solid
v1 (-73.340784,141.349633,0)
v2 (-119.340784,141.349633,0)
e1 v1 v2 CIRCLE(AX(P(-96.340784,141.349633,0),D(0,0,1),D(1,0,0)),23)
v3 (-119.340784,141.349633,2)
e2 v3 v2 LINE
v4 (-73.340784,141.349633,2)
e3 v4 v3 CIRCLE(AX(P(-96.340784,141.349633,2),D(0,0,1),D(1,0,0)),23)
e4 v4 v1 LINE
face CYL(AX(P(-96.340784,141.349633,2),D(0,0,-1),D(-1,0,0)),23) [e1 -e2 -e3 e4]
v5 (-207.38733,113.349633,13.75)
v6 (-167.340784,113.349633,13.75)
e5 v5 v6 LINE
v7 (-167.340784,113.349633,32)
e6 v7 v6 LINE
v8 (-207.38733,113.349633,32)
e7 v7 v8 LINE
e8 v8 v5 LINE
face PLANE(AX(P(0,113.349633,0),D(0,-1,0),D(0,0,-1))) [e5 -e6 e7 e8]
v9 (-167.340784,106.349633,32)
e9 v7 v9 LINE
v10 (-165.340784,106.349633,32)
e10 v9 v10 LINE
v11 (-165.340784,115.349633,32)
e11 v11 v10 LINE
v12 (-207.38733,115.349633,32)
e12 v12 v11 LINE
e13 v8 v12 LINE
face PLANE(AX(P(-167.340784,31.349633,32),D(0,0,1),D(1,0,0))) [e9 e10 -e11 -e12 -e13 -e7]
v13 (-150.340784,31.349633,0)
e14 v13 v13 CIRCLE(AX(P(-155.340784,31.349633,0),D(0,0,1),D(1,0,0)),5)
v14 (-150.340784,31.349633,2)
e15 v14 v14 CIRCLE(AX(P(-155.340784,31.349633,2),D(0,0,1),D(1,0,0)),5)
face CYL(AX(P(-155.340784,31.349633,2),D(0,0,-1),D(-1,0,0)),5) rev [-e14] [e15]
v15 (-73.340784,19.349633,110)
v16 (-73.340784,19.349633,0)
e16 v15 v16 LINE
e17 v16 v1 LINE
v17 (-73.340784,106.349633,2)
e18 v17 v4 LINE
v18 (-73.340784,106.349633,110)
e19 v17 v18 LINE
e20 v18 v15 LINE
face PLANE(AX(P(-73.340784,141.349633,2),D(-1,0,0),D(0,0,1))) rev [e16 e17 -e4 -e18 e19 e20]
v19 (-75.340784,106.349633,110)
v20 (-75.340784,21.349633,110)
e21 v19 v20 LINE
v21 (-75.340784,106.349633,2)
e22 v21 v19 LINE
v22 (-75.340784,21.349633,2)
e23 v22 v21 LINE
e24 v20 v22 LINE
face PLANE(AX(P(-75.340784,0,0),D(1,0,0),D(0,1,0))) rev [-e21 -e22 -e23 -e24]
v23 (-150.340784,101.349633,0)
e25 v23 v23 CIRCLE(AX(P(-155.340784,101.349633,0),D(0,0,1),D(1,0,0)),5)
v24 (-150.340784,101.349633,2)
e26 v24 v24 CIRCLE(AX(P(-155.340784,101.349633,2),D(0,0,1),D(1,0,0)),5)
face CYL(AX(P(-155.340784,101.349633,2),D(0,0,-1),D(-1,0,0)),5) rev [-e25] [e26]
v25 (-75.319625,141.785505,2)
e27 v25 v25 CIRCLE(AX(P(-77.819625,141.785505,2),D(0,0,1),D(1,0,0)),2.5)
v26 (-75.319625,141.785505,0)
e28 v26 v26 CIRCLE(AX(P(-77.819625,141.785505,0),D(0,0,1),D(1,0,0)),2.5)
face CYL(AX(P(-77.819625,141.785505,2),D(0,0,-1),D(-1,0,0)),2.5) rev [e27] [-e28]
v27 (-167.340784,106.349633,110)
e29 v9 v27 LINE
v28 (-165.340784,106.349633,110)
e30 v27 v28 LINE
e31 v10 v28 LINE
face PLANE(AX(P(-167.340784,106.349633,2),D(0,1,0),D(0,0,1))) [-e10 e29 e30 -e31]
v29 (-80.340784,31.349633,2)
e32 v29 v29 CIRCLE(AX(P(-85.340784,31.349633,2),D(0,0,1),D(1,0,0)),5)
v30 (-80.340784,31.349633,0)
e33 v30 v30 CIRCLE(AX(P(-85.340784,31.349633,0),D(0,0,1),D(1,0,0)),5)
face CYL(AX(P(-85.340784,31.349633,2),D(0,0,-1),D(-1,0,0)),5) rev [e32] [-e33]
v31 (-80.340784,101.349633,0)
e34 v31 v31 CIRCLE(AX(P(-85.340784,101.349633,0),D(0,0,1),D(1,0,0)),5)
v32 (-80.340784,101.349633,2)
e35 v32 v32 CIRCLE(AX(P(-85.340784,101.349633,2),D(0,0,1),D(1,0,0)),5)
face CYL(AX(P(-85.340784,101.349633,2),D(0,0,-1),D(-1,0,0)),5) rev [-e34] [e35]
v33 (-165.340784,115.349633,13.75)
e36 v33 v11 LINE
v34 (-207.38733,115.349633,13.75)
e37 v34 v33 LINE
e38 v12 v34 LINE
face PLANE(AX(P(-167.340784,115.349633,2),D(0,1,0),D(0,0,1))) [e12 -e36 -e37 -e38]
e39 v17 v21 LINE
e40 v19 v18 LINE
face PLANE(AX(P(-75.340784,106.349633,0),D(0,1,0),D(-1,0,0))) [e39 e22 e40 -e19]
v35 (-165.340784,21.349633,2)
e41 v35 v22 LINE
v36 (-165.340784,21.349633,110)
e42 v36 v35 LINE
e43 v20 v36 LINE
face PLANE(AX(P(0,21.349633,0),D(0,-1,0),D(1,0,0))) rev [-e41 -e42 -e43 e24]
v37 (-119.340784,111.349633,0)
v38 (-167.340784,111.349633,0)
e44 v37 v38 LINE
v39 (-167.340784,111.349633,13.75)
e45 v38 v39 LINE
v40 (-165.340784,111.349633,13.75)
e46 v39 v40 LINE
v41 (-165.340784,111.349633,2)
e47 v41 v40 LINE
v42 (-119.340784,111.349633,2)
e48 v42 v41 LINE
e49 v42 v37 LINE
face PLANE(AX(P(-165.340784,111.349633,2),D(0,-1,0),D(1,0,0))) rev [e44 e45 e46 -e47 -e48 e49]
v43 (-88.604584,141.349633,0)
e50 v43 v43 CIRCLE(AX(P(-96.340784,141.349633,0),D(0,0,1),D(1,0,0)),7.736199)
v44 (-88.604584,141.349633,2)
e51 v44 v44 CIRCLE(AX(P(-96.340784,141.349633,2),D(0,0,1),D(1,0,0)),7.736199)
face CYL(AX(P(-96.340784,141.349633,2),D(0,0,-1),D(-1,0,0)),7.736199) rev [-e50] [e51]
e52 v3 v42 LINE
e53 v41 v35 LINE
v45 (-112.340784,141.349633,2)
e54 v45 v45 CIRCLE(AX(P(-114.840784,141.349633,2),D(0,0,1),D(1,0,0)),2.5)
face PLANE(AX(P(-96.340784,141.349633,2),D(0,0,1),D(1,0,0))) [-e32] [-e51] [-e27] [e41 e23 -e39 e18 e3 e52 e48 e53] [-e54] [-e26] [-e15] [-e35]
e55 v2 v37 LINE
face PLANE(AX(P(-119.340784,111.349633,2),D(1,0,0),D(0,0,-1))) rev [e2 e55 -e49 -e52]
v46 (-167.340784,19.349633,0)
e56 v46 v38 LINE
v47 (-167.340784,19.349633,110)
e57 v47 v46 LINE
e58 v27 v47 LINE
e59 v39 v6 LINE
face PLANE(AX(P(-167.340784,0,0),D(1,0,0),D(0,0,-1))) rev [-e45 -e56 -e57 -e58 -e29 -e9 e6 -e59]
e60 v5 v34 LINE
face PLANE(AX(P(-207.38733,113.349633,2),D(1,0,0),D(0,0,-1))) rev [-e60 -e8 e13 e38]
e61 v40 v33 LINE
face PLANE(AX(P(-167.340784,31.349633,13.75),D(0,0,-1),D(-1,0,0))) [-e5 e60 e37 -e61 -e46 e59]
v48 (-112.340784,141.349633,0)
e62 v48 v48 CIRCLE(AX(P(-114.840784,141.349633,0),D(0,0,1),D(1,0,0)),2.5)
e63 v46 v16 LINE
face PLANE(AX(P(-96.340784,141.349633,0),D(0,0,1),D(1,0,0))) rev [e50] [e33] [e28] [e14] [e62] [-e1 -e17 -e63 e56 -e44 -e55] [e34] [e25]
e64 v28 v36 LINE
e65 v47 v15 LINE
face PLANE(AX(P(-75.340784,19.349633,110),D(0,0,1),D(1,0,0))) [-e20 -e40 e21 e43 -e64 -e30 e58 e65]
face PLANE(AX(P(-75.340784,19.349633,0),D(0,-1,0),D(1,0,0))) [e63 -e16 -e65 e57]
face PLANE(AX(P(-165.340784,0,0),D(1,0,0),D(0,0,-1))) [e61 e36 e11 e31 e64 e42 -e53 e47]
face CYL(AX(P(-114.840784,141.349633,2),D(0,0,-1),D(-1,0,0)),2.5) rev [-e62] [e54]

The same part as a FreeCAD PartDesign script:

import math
import FreeCAD as App
import Part
import Sketcher
from FreeCAD import Vector
Q = App.Units.Quantity

doc = App.newDocument("Part")
body = doc.addObject("PartDesign::Body", "Body")

# Sketch on XY plane
sketch1 = body.newObject("Sketcher::SketchObject", "Sketch")
sketch1.AttachmentSupport = (doc.getObject("XY_Plane"), [""])
sketch1.MapMode = "FlatFace"
sketch1.addGeometry([
    Part.LineSegment(Vector(-73.3, 21.3, 0), Vector(-73.3, 141.3, 0)),  # 0
    Part.ArcOfCircle(Part.Circle(Vector(-96.3, 141.3, 0), Vector(0, 0, 1), 23), math.radians(0), math.radians(180)),  # 1
    Part.LineSegment(Vector(-119.3, 141.3, 0), Vector(-119.3, 111.3, 0)),  # 2
    Part.LineSegment(Vector(-119.3, 111.3, 0), Vector(-165.3, 111.3, 0)),  # 3
    Part.LineSegment(Vector(-165.3, 111.3, 0), Vector(-165.3, 21.3, 0)),  # 4
    Part.LineSegment(Vector(-165.3, 21.3, 0), Vector(-73.3, 21.3, 0)),  # 5
    Part.Circle(Vector(-85.3, 31.3, 0), Vector(0, 0, 1), 5),  # 6
    Part.Circle(Vector(-155.3, 31.3, 0), Vector(0, 0, 1), 5),  # 7
    Part.Circle(Vector(-85.3, 101.3, 0), Vector(0, 0, 1), 5),  # 8
    Part.Circle(Vector(-77.8, 141.8, 0), Vector(0, 0, 1), 2.5),  # 9
    Part.Circle(Vector(-96.3, 141.3, 0), Vector(0, 0, 1), 7.7),  # 10
    Part.Circle(Vector(-114.8, 141.3, 0), Vector(0, 0, 1), 2.5),  # 11
    Part.Circle(Vector(-155.3, 101.3, 0), Vector(0, 0, 1), 5),  # 12
], False)
sketch1.addConstraint([
    Sketcher.Constraint("Tangent", 0, 2, 1, 1),
    Sketcher.Constraint("Tangent", 1, 2, 2, 1),
    Sketcher.Constraint("Coincident", 2, 2, 3, 1),
    Sketcher.Constraint("Coincident", 3, 2, 4, 1),
    Sketcher.Constraint("Coincident", 4, 2, 5, 1),
    Sketcher.Constraint("Coincident", 5, 2, 0, 1),
    Sketcher.Constraint("Vertical", 0),
    Sketcher.Constraint("Vertical", 2),
    Sketcher.Constraint("Horizontal", 3),
    Sketcher.Constraint("Vertical", 4),
    Sketcher.Constraint("Horizontal", 5),
    Sketcher.Constraint("Coincident", 10, 3, 1, 3),
    Sketcher.Constraint("Equal", 6, 7),
    Sketcher.Constraint("Equal", 7, 8),
    Sketcher.Constraint("Equal", 9, 11),
    Sketcher.Constraint("Equal", 8, 12),
    Sketcher.Constraint("Horizontal", 6, 3, 7, 3),
    Sketcher.Constraint("Horizontal", 10, 3, 11, 3),
    Sketcher.Constraint("Horizontal", 8, 3, 12, 3),
    Sketcher.Constraint("Vertical", 6, 3, 8, 3),
    Sketcher.Constraint("Vertical", 7, 3, 12, 3),
    Sketcher.Constraint("Diameter", 6, Q("10 mm")),
    Sketcher.Constraint("Diameter", 9, Q("5 mm")),
    Sketcher.Constraint("Radius", 1, Q("23 mm")),
    Sketcher.Constraint("DistanceX", 3, 2, 3, 1, Q("46 mm")),
    Sketcher.Constraint("DistanceY", 0, 1, 0, 2, Q("120 mm")),
    Sketcher.Constraint("DistanceY", 2, 2, 2, 1, Q("30 mm")),
    Sketcher.Constraint("DistanceX", 1, 3, 6, 3, Q("11 mm")),
    Sketcher.Constraint("DistanceY", 6, 3, 1, 3, Q("110 mm")),
    Sketcher.Constraint("DistanceX", 7, 3, 6, 3, Q("70 mm")),
    Sketcher.Constraint("DistanceY", 8, 3, 1, 3, Q("40 mm")),
    Sketcher.Constraint("DistanceX", 11, 3, 1, 3, Q("18.5 mm")),
    Sketcher.Constraint("Diameter", 10, Q("15.472398 mm")),
    Sketcher.Constraint("DistanceX", 1, 3, 9, 3, Q("18.521159 mm")),
    Sketcher.Constraint("DistanceY", 1, 3, 9, 3, Q("0.435872 mm")),
    Sketcher.Constraint("DistanceX", 1, 3, -1, 1, Q("96.340784 mm")),
    Sketcher.Constraint("DistanceY", -1, 1, 1, 3, Q("141.349633 mm")),
])
pad1 = body.newObject("PartDesign::Pad", "Pad")
pad1.Profile = sketch1
pad1.Length = 2
body2 = doc.addObject("PartDesign::Body", "Body001")

# Sketch on XZ plane
sketch2 = body2.newObject("Sketcher::SketchObject", "Sketch001")
sketch2.AttachmentSupport = (doc.getObject("XZ_Plane001"), [""])
sketch2.MapMode = "FlatFace"
sketch2.AttachmentOffset = App.Placement(Vector(0, 0, -21.349633), App.Rotation())
sketch2.addGeometry([
    Part.LineSegment(Vector(-165, 0, 0), Vector(-165, 110, 0)),
    Part.LineSegment(Vector(-165, 110, 0), Vector(-73, 110, 0)),
    Part.LineSegment(Vector(-73, 110, 0), Vector(-73, 0, 0)),
    Part.LineSegment(Vector(-73, 0, 0), Vector(-165, 0, 0)),
], False)
sketch2.addConstraint([
    Sketcher.Constraint("Coincident", 0, 2, 1, 1),
    Sketcher.Constraint("Coincident", 1, 2, 2, 1),
    Sketcher.Constraint("Coincident", 2, 2, 3, 1),
    Sketcher.Constraint("Coincident", 3, 2, 0, 1),
    Sketcher.Constraint("Vertical", 0),
    Sketcher.Constraint("Horizontal", 1),
    Sketcher.Constraint("Vertical", 2),
    Sketcher.Constraint("Horizontal", 3),
    Sketcher.Constraint("PointOnObject", 2, 2, -1),
    Sketcher.Constraint("DistanceX", 1, 1, 1, 2, Q("92 mm")),
    Sketcher.Constraint("DistanceY", 0, 1, 0, 2, Q("110 mm")),
    Sketcher.Constraint("DistanceX", 0, 2, -1, 1, Q("165.340784 mm")),
])
pad2 = body2.newObject("PartDesign::Pad", "Pad001")
pad2.Profile = sketch2
pad2.Length = 2
doc.recompute()

boolean = body.newObject("PartDesign::Boolean", "Boolean")
boolean.Type = "Fuse"
boolean.addObjects([body2])

# Sketch on YZ plane
sketch3 = body.newObject("Sketcher::SketchObject", "Sketch002")
sketch3.AttachmentSupport = (doc.getObject("YZ_Plane"), [""])
sketch3.MapMode = "FlatFace"
sketch3.AttachmentOffset = App.Placement(Vector(0, 0, -73.340784), App.Rotation())
sketch3.addGeometry([
    Part.LineSegment(Vector(106, 110, 0), Vector(19, 110, 0)),
    Part.LineSegment(Vector(19, 110, 0), Vector(19, 0, 0)),
    Part.LineSegment(Vector(19, 0, 0), Vector(106, 0, 0)),
    Part.LineSegment(Vector(106, 0, 0), Vector(106, 110, 0)),
], False)
sketch3.addConstraint([
    Sketcher.Constraint("Coincident", 0, 2, 1, 1),
    Sketcher.Constraint("Coincident", 1, 2, 2, 1),
    Sketcher.Constraint("Coincident", 2, 2, 3, 1),
    Sketcher.Constraint("Coincident", 3, 2, 0, 1),
    Sketcher.Constraint("Horizontal", 0),
    Sketcher.Constraint("Vertical", 1),
    Sketcher.Constraint("Horizontal", 2),
    Sketcher.Constraint("Vertical", 3),
    Sketcher.Constraint("PointOnObject", 1, 2, -1),
    Sketcher.Constraint("DistanceX", 0, 2, 0, 1, Q("87 mm")),
    Sketcher.Constraint("DistanceY", 1, 2, 1, 1, Q("110 mm")),
    Sketcher.Constraint("DistanceX", -1, 1, 0, 2, Q("19.349633 mm")),
])
pad3 = body.newObject("PartDesign::Pad", "Pad002")
pad3.Profile = sketch3
pad3.Length = 2
pad3.Reversed = True

# Sketch on YZ plane
sketch4 = body.newObject("Sketcher::SketchObject", "Sketch003")
sketch4.AttachmentSupport = (doc.getObject("YZ_Plane"), [""])
sketch4.MapMode = "FlatFace"
sketch4.AttachmentOffset = App.Placement(Vector(0, 0, -165.340784), App.Rotation())
sketch4.addGeometry([
    Part.LineSegment(Vector(19.3, 110, 0), Vector(19.3, 0, 0)),  # 0
    Part.LineSegment(Vector(19.3, 0, 0), Vector(111.3, 0, 0)),  # 1
    Part.LineSegment(Vector(111.3, 0, 0), Vector(111.3, 13.8, 0)),  # 2
    Part.LineSegment(Vector(111.3, 13.8, 0), Vector(115.3, 13.8, 0)),  # 3
    Part.LineSegment(Vector(115.3, 13.8, 0), Vector(115.3, 32, 0)),  # 4
    Part.LineSegment(Vector(115.3, 32, 0), Vector(106.3, 32, 0)),  # 5
    Part.LineSegment(Vector(106.3, 32, 0), Vector(106.3, 110, 0)),  # 6
    Part.LineSegment(Vector(106.3, 110, 0), Vector(19.3, 110, 0)),  # 7
], False)
sketch4.addConstraint([
    Sketcher.Constraint("Coincident", 0, 2, 1, 1),
    Sketcher.Constraint("Coincident", 1, 2, 2, 1),
    Sketcher.Constraint("Coincident", 2, 2, 3, 1),
    Sketcher.Constraint("Coincident", 3, 2, 4, 1),
    Sketcher.Constraint("Coincident", 4, 2, 5, 1),
    Sketcher.Constraint("Coincident", 5, 2, 6, 1),
    Sketcher.Constraint("Coincident", 6, 2, 7, 1),
    Sketcher.Constraint("Coincident", 7, 2, 0, 1),
    Sketcher.Constraint("Vertical", 0),
    Sketcher.Constraint("Horizontal", 1),
    Sketcher.Constraint("Vertical", 2),
    Sketcher.Constraint("Horizontal", 3),
    Sketcher.Constraint("Vertical", 4),
    Sketcher.Constraint("Horizontal", 5),
    Sketcher.Constraint("Vertical", 6),
    Sketcher.Constraint("Horizontal", 7),
    Sketcher.Constraint("PointOnObject", 0, 2, -1),
    Sketcher.Constraint("DistanceX", 1, 1, 1, 2, Q("92 mm")),
    Sketcher.Constraint("DistanceX", 3, 1, 3, 2, Q("4 mm")),
    Sketcher.Constraint("DistanceX", 5, 2, 5, 1, Q("9 mm")),
    Sketcher.Constraint("DistanceY", 0, 2, 0, 1, Q("110 mm")),
    Sketcher.Constraint("DistanceY", 6, 1, 6, 2, Q("78 mm")),
    Sketcher.Constraint("DistanceY", 2, 1, 2, 2, Q("13.75 mm")),
    Sketcher.Constraint("DistanceX", -1, 1, 0, 2, Q("19.349633 mm")),
])
pad4 = body.newObject("PartDesign::Pad", "Pad003")
pad4.Profile = sketch4
pad4.Length = 2
pad4.Reversed = True

# Sketch on XZ plane
sketch5 = body.newObject("Sketcher::SketchObject", "Sketch004")
sketch5.AttachmentSupport = (doc.getObject("XZ_Plane"), [""])
sketch5.MapMode = "FlatFace"
sketch5.AttachmentOffset = App.Placement(Vector(0, 0, -115.349633), App.Rotation())
sketch5.addGeometry([
    Part.LineSegment(Vector(-207, 14, 0), Vector(-207, 32, 0)),
    Part.LineSegment(Vector(-207, 32, 0), Vector(-165, 32, 0)),
    Part.LineSegment(Vector(-165, 32, 0), Vector(-165, 14, 0)),
    Part.LineSegment(Vector(-165, 14, 0), Vector(-207, 14, 0)),
], False)
sketch5.addConstraint([
    Sketcher.Constraint("Coincident", 0, 2, 1, 1),
    Sketcher.Constraint("Coincident", 1, 2, 2, 1),
    Sketcher.Constraint("Coincident", 2, 2, 3, 1),
    Sketcher.Constraint("Coincident", 3, 2, 0, 1),
    Sketcher.Constraint("Vertical", 0),
    Sketcher.Constraint("Horizontal", 1),
    Sketcher.Constraint("Vertical", 2),
    Sketcher.Constraint("Horizontal", 3),
    Sketcher.Constraint("DistanceY", -1, 1, 0, 2, Q("32 mm")),
    Sketcher.Constraint("DistanceY", 0, 1, 0, 2, Q("18.25 mm")),
    Sketcher.Constraint("DistanceX", 1, 1, 1, 2, Q("42.046546 mm")),
    Sketcher.Constraint("DistanceX", 0, 2, -1, 1, Q("207.38733 mm")),
])
pad5 = body.newObject("PartDesign::Pad", "Pad004")
pad5.Profile = sketch5
pad5.Length = 2

doc.recompute()
